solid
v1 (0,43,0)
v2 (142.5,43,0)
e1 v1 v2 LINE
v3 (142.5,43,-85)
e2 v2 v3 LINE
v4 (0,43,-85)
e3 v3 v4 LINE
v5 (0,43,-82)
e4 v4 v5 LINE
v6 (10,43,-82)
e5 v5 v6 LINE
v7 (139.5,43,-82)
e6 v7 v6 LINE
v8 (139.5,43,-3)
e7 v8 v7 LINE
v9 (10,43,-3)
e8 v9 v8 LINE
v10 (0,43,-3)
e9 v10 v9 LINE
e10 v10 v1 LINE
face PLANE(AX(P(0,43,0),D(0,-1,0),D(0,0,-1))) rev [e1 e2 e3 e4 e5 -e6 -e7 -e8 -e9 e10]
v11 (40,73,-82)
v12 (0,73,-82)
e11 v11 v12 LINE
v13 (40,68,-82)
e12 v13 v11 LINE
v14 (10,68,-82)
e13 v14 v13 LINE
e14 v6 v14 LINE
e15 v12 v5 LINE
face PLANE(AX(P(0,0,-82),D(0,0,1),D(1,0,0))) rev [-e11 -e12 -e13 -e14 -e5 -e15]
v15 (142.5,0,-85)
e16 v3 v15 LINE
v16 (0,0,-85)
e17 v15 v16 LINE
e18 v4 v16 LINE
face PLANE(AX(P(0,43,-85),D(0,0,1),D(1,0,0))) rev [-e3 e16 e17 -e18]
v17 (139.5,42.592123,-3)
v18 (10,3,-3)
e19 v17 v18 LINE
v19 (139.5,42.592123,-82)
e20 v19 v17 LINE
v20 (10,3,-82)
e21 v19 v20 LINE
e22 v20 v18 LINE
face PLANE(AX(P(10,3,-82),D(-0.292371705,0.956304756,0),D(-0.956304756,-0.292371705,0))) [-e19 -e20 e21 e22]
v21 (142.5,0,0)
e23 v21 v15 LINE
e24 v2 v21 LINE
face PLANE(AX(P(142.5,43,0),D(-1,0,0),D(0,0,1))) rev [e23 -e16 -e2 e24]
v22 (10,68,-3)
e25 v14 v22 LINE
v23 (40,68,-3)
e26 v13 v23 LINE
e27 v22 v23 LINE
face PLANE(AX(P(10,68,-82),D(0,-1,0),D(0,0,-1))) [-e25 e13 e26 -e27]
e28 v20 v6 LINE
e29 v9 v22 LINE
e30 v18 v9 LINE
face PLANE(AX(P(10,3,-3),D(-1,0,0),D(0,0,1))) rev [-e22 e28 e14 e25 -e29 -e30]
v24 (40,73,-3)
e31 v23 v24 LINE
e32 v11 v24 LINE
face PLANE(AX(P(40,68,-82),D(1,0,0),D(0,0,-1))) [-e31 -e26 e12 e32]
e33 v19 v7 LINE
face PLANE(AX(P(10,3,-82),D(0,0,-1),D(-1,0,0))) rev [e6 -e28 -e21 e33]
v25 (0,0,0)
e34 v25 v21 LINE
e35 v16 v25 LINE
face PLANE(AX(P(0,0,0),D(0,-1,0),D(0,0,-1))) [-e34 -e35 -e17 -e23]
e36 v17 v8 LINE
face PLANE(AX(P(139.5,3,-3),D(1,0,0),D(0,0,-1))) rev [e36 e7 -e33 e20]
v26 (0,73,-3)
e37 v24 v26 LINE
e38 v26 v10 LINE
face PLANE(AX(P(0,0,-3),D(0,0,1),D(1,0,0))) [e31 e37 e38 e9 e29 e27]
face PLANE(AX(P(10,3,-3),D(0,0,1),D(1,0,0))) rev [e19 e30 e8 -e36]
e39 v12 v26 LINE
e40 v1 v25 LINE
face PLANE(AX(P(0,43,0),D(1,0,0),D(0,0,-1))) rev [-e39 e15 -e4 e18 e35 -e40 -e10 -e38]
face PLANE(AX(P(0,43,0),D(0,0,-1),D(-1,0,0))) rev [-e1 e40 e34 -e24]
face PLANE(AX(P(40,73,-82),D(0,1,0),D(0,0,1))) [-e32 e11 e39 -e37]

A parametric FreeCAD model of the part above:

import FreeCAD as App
import Part
import Sketcher
from FreeCAD import Vector
Q = App.Units.Quantity

doc = App.newDocument("Part")
params = doc.addObject("Spreadsheet::Sheet", "Params")
for row, (alias, value) in enumerate([
    ("sketch1_height", "85 mm"),
    ("sketch1_width", "142.5 mm"),
    ("pad1_length", "43 mm"),
    ("sketch2_height", "79 mm"),
    ("sketch2_width", "129.5 mm"),
    ("pocket1_length", "40 mm"),
    ("sketch3_width", "30 mm"),
    ("sketch3_width2", "40 mm"),
    ("sketch3_height", "25 mm"),
    ("pad2_length", "79 mm"),
    ("sketch4_width", "129.5 mm"),
    ("pad3_length", "79 mm"),
], start=1):
    params.set(f"A{row}", alias)
    params.set(f"B{row}", "=" + value)
    params.setAlias(f"B{row}", alias)

body = doc.addObject("PartDesign::Body", "Body")

sketch1 = body.newObject("Sketcher::SketchObject", "Sketch")
sketch1.AttachmentSupport = (doc.getObject("XZ_Plane"), [""])
sketch1.MapMode = "FlatFace"
sketch1.addGeometry([
    Part.LineSegment(Vector(0, -85, 0), Vector(0, 0, 0)),
    Part.LineSegment(Vector(0, 0, 0), Vector(142, 0, 0)),
    Part.LineSegment(Vector(142, 0, 0), Vector(142, -85, 0)),
    Part.LineSegment(Vector(142, -85, 0), Vector(0, -85, 0)),
], False)
sketch1.addConstraint([
    Sketcher.Constraint("Coincident", 0, 2, 1, 1),
    Sketcher.Constraint("Coincident", 1, 2, 2, 1),
    Sketcher.Constraint("Coincident", 2, 2, 3, 1),
    Sketcher.Constraint("Coincident", 3, 2, 0, 1),
    Sketcher.Constraint("Vertical", 0),
    Sketcher.Constraint("Horizontal", 1),
    Sketcher.Constraint("Vertical", 2),
    Sketcher.Constraint("Horizontal", 3),
    Sketcher.Constraint("Coincident", 0, 2, -1, 1),
    Sketcher.Constraint("DistanceY", 0, 1, 0, 2, Q("85 mm")),
    Sketcher.Constraint("DistanceX", 1, 1, 1, 2, Q("142.5 mm")),
])
sketch1.setExpression("Constraints[9]", "Params.sketch1_height")
sketch1.setExpression("Constraints[10]", "Params.sketch1_width")
pad1 = body.newObject("PartDesign::Pad", "Pad")
pad1.Profile = sketch1
pad1.setExpression("Length", "Params.pad1_length")
pad1.Reversed = True

sketch2 = body.newObject("Sketcher::SketchObject", "Sketch001")
sketch2.AttachmentSupport = (doc.getObject("XZ_Plane"), [""])
sketch2.MapMode = "FlatFace"
sketch2.AttachmentOffset = App.Placement(Vector(0, 0, -43), App.Rotation())
sketch2.addGeometry([
    Part.LineSegment(Vector(10, -82, 0), Vector(10, -3, 0)),
    Part.LineSegment(Vector(10, -3, 0), Vector(140, -3, 0)),
    Part.LineSegment(Vector(140, -3, 0), Vector(140, -82, 0)),
    Part.LineSegment(Vector(140, -82, 0), Vector(10, -82, 0)),
], False)
sketch2.addConstraint([
    Sketcher.Constraint("Coincident", 0, 2, 1, 1),
    Sketcher.Constraint("Coincident", 1, 2, 2, 1),
    Sketcher.Constraint("Coincident", 2, 2, 3, 1),
    Sketcher.Constraint("Coincident", 3, 2, 0, 1),
    Sketcher.Constraint("Vertical", 0),
    Sketcher.Constraint("Horizontal", 1),
    Sketcher.Constraint("Vertical", 2),
    Sketcher.Constraint("Horizontal", 3),
    Sketcher.Constraint("DistanceY", 0, 1, 0, 2, Q("79 mm")),
    Sketcher.Constraint("DistanceX", 1, 1, 1, 2, Q("129.5 mm")),
    Sketcher.Constraint("DistanceX", -1, 1, 0, 2, Q("10 mm")),
    Sketcher.Constraint("DistanceY", 0, 2, -1, 1, Q("3 mm")),
])
sketch2.setExpression("Constraints[8]", "Params.sketch2_height")
sketch2.setExpression("Constraints[9]", "Params.sketch2_width")
pocket1 = body.newObject("PartDesign::Pocket", "Pocket")
pocket1.Profile = sketch2
pocket1.setExpression("Length", "Params.pocket1_length")
pocket1.Reversed = True

sketch3 = body.newObject("Sketcher::SketchObject", "Sketch002")
sketch3.AttachmentSupport = (doc.getObject("XY_Plane"), [""])
sketch3.MapMode = "FlatFace"
sketch3.AttachmentOffset = App.Placement(Vector(0, 0, -3), App.Rotation())
sketch3.addGeometry([
    Part.LineSegment(Vector(10, 43, 0), Vector(10, 68, 0)),
    Part.LineSegment(Vector(10, 68, 0), Vector(40, 68, 0)),
    Part.LineSegment(Vector(40, 68, 0), Vector(40, 73, 0)),
    Part.LineSegment(Vector(40, 73, 0), Vector(0, 73, 0)),
    Part.LineSegment(Vector(0, 73, 0), Vector(0, 43, 0)),
    Part.LineSegment(Vector(0, 43, 0), Vector(10, 43, 0)),
], False)
sketch3.addConstraint([
    Sketcher.Constraint("Coincident", 0, 2, 1, 1),
    Sketcher.Constraint("Coincident", 1, 2, 2, 1),
    Sketcher.Constraint("Coincident", 2, 2, 3, 1),
    Sketcher.Constraint("Coincident", 3, 2, 4, 1),
    Sketcher.Constraint("Coincident", 4, 2, 5, 1),
    Sketcher.Constraint("Coincident", 5, 2, 0, 1),
    Sketcher.Constraint("Vertical", 0),
    Sketcher.Constraint("Horizontal", 1),
    Sketcher.Constraint("Vertical", 2),
    Sketcher.Constraint("Horizontal", 3),
    Sketcher.Constraint("Vertical", 4),
    Sketcher.Constraint("Horizontal", 5),
    Sketcher.Constraint("PointOnObject", 3, 2, -2),
    Sketcher.Constraint("Equal", 1, 4),
    Sketcher.Constraint("DistanceX", 1, 1, 1, 2, Q("30 mm")),
    Sketcher.Constraint("DistanceX", 3, 2, 3, 1, Q("40 mm")),
    Sketcher.Constraint("DistanceY", 0, 1, 0, 2, Q("25 mm")),
    Sketcher.Constraint("DistanceY", -1, 1, 0, 2, Q("68 mm")),
])
sketch3.setExpression("Constraints[14]", "Params.sketch3_width")
sketch3.setExpression("Constraints[15]", "Params.sketch3_width2")
sketch3.setExpression("Constraints[16]", "Params.sketch3_height")
pad2 = body.newObject("PartDesign::Pad", "Pad001")
pad2.Profile = sketch3
pad2.setExpression("Length", "Params.pad2_length")
pad2.Reversed = True

sketch4 = body.newObject("Sketcher::SketchObject", "Sketch003")
sketch4.AttachmentSupport = (doc.getObject("XY_Plane"), [""])
sketch4.MapMode = "FlatFace"
sketch4.AttachmentOffset = App.Placement(Vector(0, 0, -3), App.Rotation())
sketch4.addGeometry([
    Part.LineSegment(Vector(140, 43, 0), Vector(10, 3, 0)),
    Part.LineSegment(Vector(10, 3, 0), Vector(140, 3, 0)),
    Part.LineSegment(Vector(140, 3, 0), Vector(140, 43, 0)),
], False)
sketch4.addConstraint([
    Sketcher.Constraint("Coincident", 0, 2, 1, 1),
    Sketcher.Constraint("Coincident", 1, 2, 2, 1),
    Sketcher.Constraint("Coincident", 2, 2, 0, 1),
    Sketcher.Constraint("Horizontal", 1),
    Sketcher.Constraint("Vertical", 2),
    Sketcher.Constraint("Angle", 0, Q("-163 deg")),
    Sketcher.Constraint("DistanceX", 1, 1, 1, 2, Q("129.5 mm")),
    Sketcher.Constraint("DistanceX", -1, 1, 0, 2, Q("10 mm")),
    Sketcher.Constraint("DistanceY", -1, 1, 0, 2, Q("3 mm")),
])
sketch4.setExpression("Constraints[6]", "Params.sketch4_width")
pad3 = body.newObject("PartDesign::Pad", "Pad002")
pad3.Profile = sketch4
pad3.setExpression("Length", "Params.pad3_length")
pad3.Reversed = True

doc.recompute()
